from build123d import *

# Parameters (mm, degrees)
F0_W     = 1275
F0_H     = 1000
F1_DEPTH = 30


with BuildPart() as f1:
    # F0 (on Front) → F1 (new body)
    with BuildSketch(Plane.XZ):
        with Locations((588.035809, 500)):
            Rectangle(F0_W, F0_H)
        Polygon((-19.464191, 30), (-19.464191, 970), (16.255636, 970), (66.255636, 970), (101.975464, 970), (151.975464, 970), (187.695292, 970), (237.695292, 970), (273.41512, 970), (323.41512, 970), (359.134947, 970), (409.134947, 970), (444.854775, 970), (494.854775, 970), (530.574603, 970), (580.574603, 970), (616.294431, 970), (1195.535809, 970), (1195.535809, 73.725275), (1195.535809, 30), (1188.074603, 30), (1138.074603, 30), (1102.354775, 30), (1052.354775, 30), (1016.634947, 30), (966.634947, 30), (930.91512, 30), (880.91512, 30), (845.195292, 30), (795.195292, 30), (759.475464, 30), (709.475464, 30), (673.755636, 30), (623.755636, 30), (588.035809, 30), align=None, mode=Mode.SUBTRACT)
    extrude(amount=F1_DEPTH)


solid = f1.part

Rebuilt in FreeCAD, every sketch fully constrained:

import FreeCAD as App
import Part
import Sketcher
Q = App.Units.Quantity

doc = App.newDocument("Part")
body = doc.addObject("PartDesign::Body", "Body")

sketch1 = body.newObject("Sketcher::SketchObject", "Sketch")
sketch1.AttachmentSupport = (doc.getObject("XZ_Plane"), [""])
sketch1.MapMode = "FlatFace"
sketch1.addGeometry(Part.LineSegment(App.Vector(-49, 1000, 0), App.Vector(-49, 0, 0)), False)
sketch1.addGeometry(Part.LineSegment(App.Vector(-49, 0, 0), App.Vector(1226, 0, 0)), False)
sketch1.addGeometry(Part.LineSegment(App.Vector(1226, 0, 0), App.Vector(1226, 1000, 0)), False)
sketch1.addGeometry(Part.LineSegment(App.Vector(1226, 1000, 0), App.Vector(-49, 1000, 0)), False)
sketch1.addGeometry(Part.LineSegment(App.Vector(1196, 30, 0), App.Vector(-19, 30, 0)), False)
sketch1.addGeometry(Part.LineSegment(App.Vector(-19, 30, 0), App.Vector(-19, 970, 0)), False)
sketch1.addGeometry(Part.LineSegment(App.Vector(-19, 970, 0), App.Vector(1196, 970, 0)), False)
sketch1.addGeometry(Part.LineSegment(App.Vector(1196, 970, 0), App.Vector(1196, 30, 0)), False)
sketch1.addConstraint(Sketcher.Constraint("Coincident", 0, 2, 1, 1))
sketch1.addConstraint(Sketcher.Constraint("Coincident", 1, 2, 2, 1))
sketch1.addConstraint(Sketcher.Constraint("Coincident", 2, 2, 3, 1))
sketch1.addConstraint(Sketcher.Constraint("Coincident", 3, 2, 0, 1))
sketch1.addConstraint(Sketcher.Constraint("Coincident", 4, 2, 5, 1))
sketch1.addConstraint(Sketcher.Constraint("Coincident", 5, 2, 6, 1))
sketch1.addConstraint(Sketcher.Constraint("Coincident", 6, 2, 7, 1))
sketch1.addConstraint(Sketcher.Constraint("Coincident", 7, 2, 4, 1))
sketch1.addConstraint(Sketcher.Constraint("Vertical", 0))
sketch1.addConstraint(Sketcher.Constraint("Horizontal", 1))
sketch1.addConstraint(Sketcher.Constraint("Vertical", 2))
sketch1.addConstraint(Sketcher.Constraint("Horizontal", 3))
sketch1.addConstraint(Sketcher.Constraint("Horizontal", 4))
sketch1.addConstraint(Sketcher.Constraint("Vertical", 5))
sketch1.addConstraint(Sketcher.Constraint("Horizontal", 6))
sketch1.addConstraint(Sketcher.Constraint("Vertical", 7))
sketch1.addConstraint(Sketcher.Constraint("PointOnObject", 0, 2, -1))
sketch1.addConstraint(Sketcher.Constraint("DistanceX", 1, 1, 1, 2, Q("1275 mm")))
sketch1.addConstraint(Sketcher.Constraint("DistanceX", 4, 2, 4, 1, Q("1215 mm")))
sketch1.addConstraint(Sketcher.Constraint("DistanceY", 0, 2, 0, 1, Q("1000 mm")))
sketch1.addConstraint(Sketcher.Constraint("DistanceY", 5, 1, 5, 2, Q("940 mm")))
sketch1.addConstraint(Sketcher.Constraint("DistanceY", -1, 1, 4, 2, Q("30 mm")))
sketch1.addConstraint(Sketcher.Constraint("DistanceX", 0, 2, 4, 2, Q("30 mm")))
sketch1.addConstraint(Sketcher.Constraint("DistanceX", 0, 2, -1, 1, Q("49.464191 mm")))
pad1 = body.newObject("PartDesign::Pad", "Pad")
pad1.Profile = sketch1
pad1.Length = 30

doc.recompute()
